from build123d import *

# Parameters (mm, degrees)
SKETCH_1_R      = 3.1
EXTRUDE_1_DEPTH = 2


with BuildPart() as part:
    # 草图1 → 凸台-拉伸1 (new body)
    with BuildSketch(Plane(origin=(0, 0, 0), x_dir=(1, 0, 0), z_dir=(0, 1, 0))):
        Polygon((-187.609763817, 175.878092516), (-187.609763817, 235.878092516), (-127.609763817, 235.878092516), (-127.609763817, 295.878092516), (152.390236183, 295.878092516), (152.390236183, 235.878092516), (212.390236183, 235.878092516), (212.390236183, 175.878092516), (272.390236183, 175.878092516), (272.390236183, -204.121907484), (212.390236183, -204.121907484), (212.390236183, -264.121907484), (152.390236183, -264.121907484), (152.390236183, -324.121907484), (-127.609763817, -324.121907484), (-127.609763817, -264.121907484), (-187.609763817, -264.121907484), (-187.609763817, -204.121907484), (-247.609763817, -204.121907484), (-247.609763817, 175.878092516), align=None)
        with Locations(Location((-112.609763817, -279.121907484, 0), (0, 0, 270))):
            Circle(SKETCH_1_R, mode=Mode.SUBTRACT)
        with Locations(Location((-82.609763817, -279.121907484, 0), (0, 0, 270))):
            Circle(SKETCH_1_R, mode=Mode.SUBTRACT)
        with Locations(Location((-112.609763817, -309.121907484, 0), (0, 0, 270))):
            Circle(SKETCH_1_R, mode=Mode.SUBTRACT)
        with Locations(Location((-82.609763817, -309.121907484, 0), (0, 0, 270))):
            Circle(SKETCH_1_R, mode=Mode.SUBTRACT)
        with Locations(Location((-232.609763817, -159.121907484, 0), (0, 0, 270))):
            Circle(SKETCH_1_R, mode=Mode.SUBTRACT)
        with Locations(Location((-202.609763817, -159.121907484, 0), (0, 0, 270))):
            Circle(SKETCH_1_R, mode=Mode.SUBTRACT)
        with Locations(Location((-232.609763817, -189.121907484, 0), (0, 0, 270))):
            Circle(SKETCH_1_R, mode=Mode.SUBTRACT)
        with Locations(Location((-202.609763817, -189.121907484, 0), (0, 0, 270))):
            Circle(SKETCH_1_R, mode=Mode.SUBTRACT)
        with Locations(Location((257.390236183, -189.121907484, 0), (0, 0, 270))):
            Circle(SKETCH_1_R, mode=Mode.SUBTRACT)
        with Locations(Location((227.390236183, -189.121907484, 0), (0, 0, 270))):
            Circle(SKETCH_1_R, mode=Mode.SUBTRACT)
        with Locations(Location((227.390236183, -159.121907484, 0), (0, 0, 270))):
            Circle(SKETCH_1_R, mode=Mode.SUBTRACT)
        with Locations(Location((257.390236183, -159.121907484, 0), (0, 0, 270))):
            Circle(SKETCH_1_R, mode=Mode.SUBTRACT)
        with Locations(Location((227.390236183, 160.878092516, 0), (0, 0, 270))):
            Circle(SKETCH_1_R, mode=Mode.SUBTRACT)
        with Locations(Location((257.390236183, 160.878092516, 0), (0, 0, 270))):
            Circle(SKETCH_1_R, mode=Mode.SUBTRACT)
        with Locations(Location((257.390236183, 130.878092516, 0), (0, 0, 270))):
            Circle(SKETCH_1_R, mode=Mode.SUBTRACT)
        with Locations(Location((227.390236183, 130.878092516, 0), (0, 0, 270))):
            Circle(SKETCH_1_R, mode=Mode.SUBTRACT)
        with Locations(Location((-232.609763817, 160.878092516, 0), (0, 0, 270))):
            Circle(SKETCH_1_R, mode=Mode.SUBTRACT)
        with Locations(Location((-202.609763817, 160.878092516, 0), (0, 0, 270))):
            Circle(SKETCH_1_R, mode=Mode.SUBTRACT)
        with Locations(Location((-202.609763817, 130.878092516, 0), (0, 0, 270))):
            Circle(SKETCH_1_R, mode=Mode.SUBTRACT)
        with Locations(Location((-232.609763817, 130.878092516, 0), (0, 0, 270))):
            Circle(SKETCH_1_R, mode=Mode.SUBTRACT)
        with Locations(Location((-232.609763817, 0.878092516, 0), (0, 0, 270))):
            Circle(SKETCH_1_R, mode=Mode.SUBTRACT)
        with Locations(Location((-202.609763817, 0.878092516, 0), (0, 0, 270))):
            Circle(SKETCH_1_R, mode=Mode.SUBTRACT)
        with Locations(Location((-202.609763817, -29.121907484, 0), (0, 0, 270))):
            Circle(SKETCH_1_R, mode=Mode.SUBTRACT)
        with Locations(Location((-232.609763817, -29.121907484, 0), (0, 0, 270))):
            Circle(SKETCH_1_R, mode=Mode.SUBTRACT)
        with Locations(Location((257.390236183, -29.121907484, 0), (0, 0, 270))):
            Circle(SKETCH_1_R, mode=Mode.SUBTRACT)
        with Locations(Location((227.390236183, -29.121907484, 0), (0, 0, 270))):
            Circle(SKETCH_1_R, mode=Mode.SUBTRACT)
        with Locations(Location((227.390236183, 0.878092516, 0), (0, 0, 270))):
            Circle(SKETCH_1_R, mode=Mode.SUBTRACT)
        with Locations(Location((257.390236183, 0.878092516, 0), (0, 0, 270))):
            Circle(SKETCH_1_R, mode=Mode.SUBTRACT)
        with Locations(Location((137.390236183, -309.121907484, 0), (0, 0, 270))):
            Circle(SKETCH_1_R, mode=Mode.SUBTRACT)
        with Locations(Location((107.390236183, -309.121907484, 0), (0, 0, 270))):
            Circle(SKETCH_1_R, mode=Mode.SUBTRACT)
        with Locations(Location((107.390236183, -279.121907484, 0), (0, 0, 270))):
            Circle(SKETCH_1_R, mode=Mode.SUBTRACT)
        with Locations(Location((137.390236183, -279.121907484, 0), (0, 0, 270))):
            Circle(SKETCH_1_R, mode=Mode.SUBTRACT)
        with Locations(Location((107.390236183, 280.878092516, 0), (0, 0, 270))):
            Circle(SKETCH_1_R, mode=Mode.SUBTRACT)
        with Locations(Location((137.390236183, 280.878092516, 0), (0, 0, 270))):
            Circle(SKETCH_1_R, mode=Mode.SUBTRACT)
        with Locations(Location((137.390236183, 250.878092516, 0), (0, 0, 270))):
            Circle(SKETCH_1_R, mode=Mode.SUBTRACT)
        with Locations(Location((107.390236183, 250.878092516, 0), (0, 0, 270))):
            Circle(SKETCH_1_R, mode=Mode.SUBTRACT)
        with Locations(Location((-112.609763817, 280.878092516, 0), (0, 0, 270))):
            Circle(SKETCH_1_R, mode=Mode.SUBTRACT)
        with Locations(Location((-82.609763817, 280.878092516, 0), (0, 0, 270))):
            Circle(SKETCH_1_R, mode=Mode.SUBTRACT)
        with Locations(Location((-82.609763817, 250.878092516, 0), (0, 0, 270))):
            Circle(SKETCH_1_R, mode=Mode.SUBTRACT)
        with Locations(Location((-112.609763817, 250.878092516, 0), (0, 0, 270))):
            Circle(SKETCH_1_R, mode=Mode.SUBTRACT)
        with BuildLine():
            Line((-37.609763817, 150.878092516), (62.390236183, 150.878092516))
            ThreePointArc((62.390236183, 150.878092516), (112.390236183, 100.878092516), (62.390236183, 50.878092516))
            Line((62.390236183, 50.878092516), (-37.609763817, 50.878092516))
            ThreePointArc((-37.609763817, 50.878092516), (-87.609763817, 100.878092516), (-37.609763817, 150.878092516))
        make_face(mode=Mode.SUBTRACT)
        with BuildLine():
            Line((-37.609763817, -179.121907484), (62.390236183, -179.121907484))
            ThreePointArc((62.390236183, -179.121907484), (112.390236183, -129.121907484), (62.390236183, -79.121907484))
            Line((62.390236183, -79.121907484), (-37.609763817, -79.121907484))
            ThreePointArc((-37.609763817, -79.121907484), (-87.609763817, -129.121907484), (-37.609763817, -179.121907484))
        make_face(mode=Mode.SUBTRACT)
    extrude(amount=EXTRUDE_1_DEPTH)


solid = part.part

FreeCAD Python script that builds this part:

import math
import FreeCAD as App
import Part
import Sketcher
from FreeCAD import Vector


def add_polygon(sketch, points):
    """Adds a closed chain of lines whose ends are joined by coincident constraints."""
    first, n = sketch.GeometryCount, len(points)
    for a, b in zip(points, points[1:] + points[:1]):
        sketch.addGeometry(Part.LineSegment(App.Vector(*a, 0), App.Vector(*b, 0)), False)
    for i in range(n):
        sketch.addConstraint(Sketcher.Constraint("Coincident", first + i, 2, first + (i + 1) % n, 1))

doc = App.newDocument("Part")
body = doc.addObject("PartDesign::Body", "Body")

# Sketch on XZ plane
sketch1 = body.newObject("Sketcher::SketchObject", "Sketch")
sketch1.AttachmentSupport = (doc.getObject("XZ_Plane"), [""])
sketch1.MapMode = "FlatFace"
add_polygon(sketch1, [(-187.6, -235.9), (-187.6, -175.9), (-247.6, -175.9), (-247.6, 204.1), (-187.6, 204.1), (-187.6, 264.1), (-127.6, 264.1), (-127.6, 324.1), (152.4, 324.1), (152.4, 264.1), (212.4, 264.1), (212.4, 204.1), (272.4, 204.1), (272.4, -175.9), (212.4, -175.9), (212.4, -235.9), (152.4, -235.9), (152.4, -295.9), (-127.6, -295.9), (-127.6, -235.9)])  # lines 0-19
sketch1.addGeometry(Part.Circle(Vector(137.4, 309.1, 0), Vector(0, 0, 1), 3.1), False)  # 20
sketch1.addGeometry(Part.Circle(Vector(137.4, 279.1, 0), Vector(0, 0, 1), 3.1), False)  # 21
sketch1.addGeometry(Part.Circle(Vector(257.4, 189.1, 0), Vector(0, 0, 1), 3.1), False)  # 22
sketch1.addGeometry(Part.Circle(Vector(227.4, 189.1, 0), Vector(0, 0, 1), 3.1), False)  # 23
sketch1.addGeometry(Part.Circle(Vector(107.4, 309.1, 0), Vector(0, 0, 1), 3.1), False)  # 24
sketch1.addGeometry(Part.Circle(Vector(107.4, 279.1, 0), Vector(0, 0, 1), 3.1), False)  # 25
sketch1.addGeometry(Part.Circle(Vector(257.4, 159.1, 0), Vector(0, 0, 1), 3.1), False)  # 26
sketch1.addGeometry(Part.Circle(Vector(227.4, 159.1, 0), Vector(0, 0, 1), 3.1), False)  # 27
sketch1.addGeometry(Part.Circle(Vector(257.4, 29.1, 0), Vector(0, 0, 1), 3.1), False)  # 28
sketch1.addGeometry(Part.Circle(Vector(227.4, 29.1, 0), Vector(0, 0, 1), 3.1), False)  # 29
sketch1.addGeometry(Part.Circle(Vector(-82.6, 309.1, 0), Vector(0, 0, 1), 3.1), False)  # 30
sketch1.addGeometry(Part.Circle(Vector(-82.6, 279.1, 0), Vector(0, 0, 1), 3.1), False)  # 31
sketch1.addGeometry(Part.Circle(Vector(-112.6, 309.1, 0), Vector(0, 0, 1), 3.1), False)  # 32
sketch1.addGeometry(Part.Circle(Vector(-112.6, 279.1, 0), Vector(0, 0, 1), 3.1), False)  # 33
sketch1.addGeometry(Part.Circle(Vector(-202.6, 189.1, 0), Vector(0, 0, 1), 3.1), False)  # 34
sketch1.addGeometry(Part.Circle(Vector(-232.6, 189.1, 0), Vector(0, 0, 1), 3.1), False)  # 35
sketch1.addGeometry(Part.ArcOfCircle(Part.Circle(Vector(-37.6, 129.1, 0), Vector(0, 0, 1), 50), math.radians(90), math.radians(270)), False)  # 36
sketch1.addGeometry(Part.LineSegment(Vector(-37.6, 79.1, 0), Vector(62.4, 79.1, 0)), False)  # 37
sketch1.addGeometry(Part.ArcOfCircle(Part.Circle(Vector(62.4, 129.1, 0), Vector(0, 0, 1), 50), math.radians(-90), math.radians(90)), False)  # 38
sketch1.addGeometry(Part.LineSegment(Vector(62.4, 179.1, 0), Vector(-37.6, 179.1, 0)), False)  # 39
sketch1.addGeometry(Part.Circle(Vector(-202.6, 159.1, 0), Vector(0, 0, 1), 3.1), False)  # 40
sketch1.addGeometry(Part.Circle(Vector(-232.6, 159.1, 0), Vector(0, 0, 1), 3.1), False)  # 41
sketch1.addGeometry(Part.Circle(Vector(-202.6, 29.1, 0), Vector(0, 0, 1), 3.1), False)  # 42
sketch1.addGeometry(Part.Circle(Vector(-232.6, 29.1, 0), Vector(0, 0, 1), 3.1), False)  # 43
sketch1.addGeometry(Part.Circle(Vector(257.4, -0.9, 0), Vector(0, 0, 1), 3.1), False)  # 44
sketch1.addGeometry(Part.Circle(Vector(227.4, -0.9, 0), Vector(0, 0, 1), 3.1), False)  # 45
sketch1.addGeometry(Part.Circle(Vector(257.4, -130.9, 0), Vector(0, 0, 1), 3.1), False)  # 46
sketch1.addGeometry(Part.Circle(Vector(227.4, -130.9, 0), Vector(0, 0, 1), 3.1), False)  # 47
sketch1.addGeometry(Part.Circle(Vector(257.4, -160.9, 0), Vector(0, 0, 1), 3.1), False)  # 48
sketch1.addGeometry(Part.Circle(Vector(227.4, -160.9, 0), Vector(0, 0, 1), 3.1), False)  # 49
sketch1.addGeometry(Part.Circle(Vector(137.4, -250.9, 0), Vector(0, 0, 1), 3.1), False)  # 50
sketch1.addGeometry(Part.Circle(Vector(137.4, -280.9, 0), Vector(0, 0, 1), 3.1), False)  # 51
sketch1.addGeometry(Part.Circle(Vector(107.4, -250.9, 0), Vector(0, 0, 1), 3.1), False)  # 52
sketch1.addGeometry(Part.Circle(Vector(107.4, -280.9, 0), Vector(0, 0, 1), 3.1), False)  # 53
sketch1.addGeometry(Part.LineSegment(Vector(-37.6, -150.9, 0), Vector(62.4, -150.9, 0)), False)  # 54
sketch1.addGeometry(Part.ArcOfCircle(Part.Circle(Vector(62.4, -100.9, 0), Vector(0, 0, 1), 50), math.radians(-90), math.radians(90)), False)  # 55
sketch1.addGeometry(Part.LineSegment(Vector(62.4, -50.9, 0), Vector(-37.6, -50.9, 0)), False)  # 56
sketch1.addGeometry(Part.ArcOfCircle(Part.Circle(Vector(-37.6, -100.9, 0), Vector(0, 0, 1), 50), math.radians(90), math.radians(270)), False)  # 57
sketch1.addGeometry(Part.Circle(Vector(-202.6, -0.9, 0), Vector(0, 0, 1), 3.1), False)  # 58
sketch1.addGeometry(Part.Circle(Vector(-232.6, -0.9, 0), Vector(0, 0, 1), 3.1), False)  # 59
sketch1.addGeometry(Part.Circle(Vector(-202.6, -130.9, 0), Vector(0, 0, 1), 3.1), False)  # 60
sketch1.addGeometry(Part.Circle(Vector(-232.6, -130.9, 0), Vector(0, 0, 1), 3.1), False)  # 61
sketch1.addGeometry(Part.Circle(Vector(-82.6, -250.9, 0), Vector(0, 0, 1), 3.1), False)  # 62
sketch1.addGeometry(Part.Circle(Vector(-82.6, -280.9, 0), Vector(0, 0, 1), 3.1), False)  # 63
sketch1.addGeometry(Part.Circle(Vector(-202.6, -160.9, 0), Vector(0, 0, 1), 3.1), False)  # 64
sketch1.addGeometry(Part.Circle(Vector(-232.6, -160.9, 0), Vector(0, 0, 1), 3.1), False)  # 65
sketch1.addGeometry(Part.Circle(Vector(-112.6, -250.9, 0), Vector(0, 0, 1), 3.1), False)  # 66
sketch1.addGeometry(Part.Circle(Vector(-112.6, -280.9, 0), Vector(0, 0, 1), 3.1), False)  # 67
sketch1.addConstraint([
    Sketcher.Constraint("Tangent", 36, 2, 37, 1),
    Sketcher.Constraint("Tangent", 37, 2, 38, 1),
    Sketcher.Constraint("Tangent", 38, 2, 39, 1),
    Sketcher.Constraint("Tangent", 39, 2, 36, 1),
    Sketcher.Constraint("Tangent", 54, 2, 55, 1),
    Sketcher.Constraint("Tangent", 55, 2, 56, 1),
    Sketcher.Constraint("Tangent", 56, 2, 57, 1),
    Sketcher.Constraint("Tangent", 57, 2, 54, 1),
    Sketcher.Constraint("Vertical", 0),
    Sketcher.Constraint("Horizontal", 1),
    Sketcher.Constraint("Vertical", 2),
    Sketcher.Constraint("Horizontal", 3),
    Sketcher.Constraint("Vertical", 4),
    Sketcher.Constraint("Horizontal", 5),
    Sketcher.Constraint("Vertical", 6),
    Sketcher.Constraint("Horizontal", 7),
    Sketcher.Constraint("Vertical", 8),
    Sketcher.Constraint("Horizontal", 9),
    Sketcher.Constraint("Vertical", 10),
    Sketcher.Constraint("Horizontal", 11),
    Sketcher.Constraint("Vertical", 12),
    Sketcher.Constraint("Horizontal", 13),
    Sketcher.Constraint("Vertical", 14),
    Sketcher.Constraint("Horizontal", 15),
    Sketcher.Constraint("Vertical", 16),
    Sketcher.Constraint("Horizontal", 17),
    Sketcher.Constraint("Vertical", 18),
    Sketcher.Constraint("Horizontal", 19),
    Sketcher.Constraint("Horizontal", 37),
    Sketcher.Constraint("Horizontal", 39),
    Sketcher.Constraint("Horizontal", 54),
    Sketcher.Constraint("Horizontal", 56),
    Sketcher.Constraint("Equal", 20, 21),
    Sketcher.Constraint("Equal", 21, 22),
    Sketcher.Constraint("Equal", 22, 23),
    Sketcher.Constraint("Equal", 23, 24),
    Sketcher.Constraint("Equal", 24, 25),
    Sketcher.Constraint("Equal", 25, 26),
    Sketcher.Constraint("Equal", 26, 27),
    Sketcher.Constraint("Equal", 27, 28),
    Sketcher.Constraint("Equal", 28, 29),
    Sketcher.Constraint("Equal", 29, 30),
    Sketcher.Constraint("Equal", 30, 31),
    Sketcher.Constraint("Equal", 31, 32),
    Sketcher.Constraint("Equal", 32, 33),
    Sketcher.Constraint("Equal", 33, 34),
    Sketcher.Constraint("Equal", 34, 35),
    Sketcher.Constraint("Equal", 35, 40),
    Sketcher.Constraint("Equal", 40, 41),
    Sketcher.Constraint("Equal", 41, 42),
    Sketcher.Constraint("Equal", 42, 43),
    Sketcher.Constraint("Equal", 43, 44),
    Sketcher.Constraint("Equal", 44, 45),
    Sketcher.Constraint("Equal", 45, 46),
    Sketcher.Constraint("Equal", 46, 47),
    Sketcher.Constraint("Equal", 47, 48),
    Sketcher.Constraint("Equal", 48, 49),
    Sketcher.Constraint("Equal", 49, 50),
    Sketcher.Constraint("Equal", 50, 51),
    Sketcher.Constraint("Equal", 51, 52),
    Sketcher.Constraint("Equal", 52, 53),
    Sketcher.Constraint("Equal", 38, 55),
    Sketcher.Constraint("Equal", 53, 58),
    Sketcher.Constraint("Equal", 58, 59),
    Sketcher.Constraint("Equal", 59, 60),
    Sketcher.Constraint("Equal", 60, 61),
    Sketcher.Constraint("Equal", 61, 62),
    Sketcher.Constraint("Equal", 62, 63),
    Sketcher.Constraint("Equal", 63, 64),
    Sketcher.Constraint("Equal", 64, 65),
    Sketcher.Constraint("Equal", 65, 66),
    Sketcher.Constraint("Equal", 66, 67),
    Sketcher.Constraint("Horizontal", 22, 3, 23, 3),
    Sketcher.Constraint("Horizontal", 20, 3, 24, 3),
    Sketcher.Constraint("Horizontal", 21, 3, 25, 3),
    Sketcher.Constraint("Horizontal", 26, 3, 27, 3),
    Sketcher.Constraint("Horizontal", 28, 3, 29, 3),
    Sketcher.Constraint("Horizontal", 24, 3, 30, 3),
    Sketcher.Constraint("Horizontal", 25, 3, 31, 3),
    Sketcher.Constraint("Horizontal", 30, 3, 32, 3),
    Sketcher.Constraint("Horizontal", 31, 3, 33, 3),
    Sketcher.Constraint("Horizontal", 23, 3, 34, 3),
    Sketcher.Constraint("Horizontal", 34, 3, 35, 3),
    Sketcher.Constraint("Horizontal", 27, 3, 40, 3),
    Sketcher.Constraint("Horizontal", 40, 3, 41, 3),
    Sketcher.Constraint("Horizontal", 29, 3, 42, 3),
    Sketcher.Constraint("Horizontal", 42, 3, 43, 3),
    Sketcher.Constraint("Horizontal", 44, 3, 45, 3),
    Sketcher.Constraint("Horizontal", 46, 3, 47, 3),
    Sketcher.Constraint("Horizontal", 48, 3, 49, 3),
    Sketcher.Constraint("Horizontal", 50, 3, 52, 3),
    Sketcher.Constraint("Horizontal", 51, 3, 53, 3),
    Sketcher.Constraint("Horizontal", 45, 3, 58, 3),
    Sketcher.Constraint("Horizontal", 58, 3, 59, 3),
    Sketcher.Constraint("Horizontal", 47, 3, 60, 3),
    Sketcher.Constraint("Horizontal", 60, 3, 61, 3),
    Sketcher.Constraint("Horizontal", 52, 3, 62, 3),
    Sketcher.Constraint("Horizontal", 53, 3, 63, 3),
    Sketcher.Constraint("Horizontal", 49, 3, 64, 3),
    Sketcher.Constraint("Horizontal", 64, 3, 65, 3),
    Sketcher.Constraint("Horizontal", 62, 3, 66, 3),
    Sketcher.Constraint("Horizontal", 63, 3, 67, 3),
    Sketcher.Constraint("Horizontal", 5, 2, 8, 2),
    Sketcher.Constraint("Horizontal", 3, 2, 10, 2),
    Sketcher.Constraint("Horizontal", 1, 2, 12, 2),
    Sketcher.Constraint("Horizontal", 15, 2, 18, 2),
    Sketcher.Constraint("Vertical", 20, 3, 21, 3),
    Sketcher.Constraint("Vertical", 24, 3, 25, 3),
    Sketcher.Constraint("Vertical", 22, 3, 26, 3),
    Sketcher.Constraint("Vertical", 23, 3, 27, 3),
    Sketcher.Constraint("Vertical", 26, 3, 28, 3),
    Sketcher.Constraint("Vertical", 27, 3, 29, 3),
    Sketcher.Constraint("Vertical", 30, 3, 31, 3),
    Sketcher.Constraint("Vertical", 32, 3, 33, 3),
    Sketcher.Constraint("Vertical", 34, 3, 40, 3),
    Sketcher.Constraint("Vertical", 35, 3, 41, 3),
    Sketcher.Constraint("Vertical", 40, 3, 42, 3),
    Sketcher.Constraint("Vertical", 41, 3, 43, 3),
    Sketcher.Constraint("Vertical", 28, 3, 44, 3),
    Sketcher.Constraint("Vertical", 29, 3, 45, 3),
    Sketcher.Constraint("Vertical", 44, 3, 46, 3),
    Sketcher.Constraint("Vertical", 45, 3, 47, 3),
    Sketcher.Constraint("Vertical", 46, 3, 48, 3),
    Sketcher.Constraint("Vertical", 47, 3, 49, 3),
    Sketcher.Constraint("Vertical", 21, 3, 50, 3),
    Sketcher.Constraint("Vertical", 50, 3, 51, 3),
    Sketcher.Constraint("Vertical", 25, 3, 52, 3),
    Sketcher.Constraint("Vertical", 52, 3, 53, 3),
    Sketcher.Constraint("Vertical", 38, 3, 55, 3),
    Sketcher.Constraint("Vertical", 36, 3, 57, 3),
    Sketcher.Constraint("Vertical", 42, 3, 58, 3),
    Sketcher.Constraint("Vertical", 43, 3, 59, 3),
    Sketcher.Constraint("Vertical", 58, 3, 60, 3),
    Sketcher.Constraint("Vertical", 59, 3, 61, 3),
    Sketcher.Constraint("Vertical", 31, 3, 62, 3),
    Sketcher.Constraint("Vertical", 62, 3, 63, 3),
    Sketcher.Constraint("Vertical", 60, 3, 64, 3),
    Sketcher.Constraint("Vertical", 61, 3, 65, 3),
    Sketcher.Constraint("Vertical", 33, 3, 66, 3),
    Sketcher.Constraint("Vertical", 66, 3, 67, 3),
    Sketcher.Constraint("Vertical", 0, 2, 3, 2),
    Sketcher.Constraint("Vertical", 10, 2, 13, 2),
    Sketcher.Constraint("Vertical", 8, 2, 15, 2),
    Sketcher.Constraint("Vertical", 6, 2, 17, 2),
    Sketcher.Constraint("Equal", 3, 5),
    Sketcher.Constraint("Equal", 5, 9),
    Sketcher.Constraint("Equal", 9, 11),
    Sketcher.Constraint("Equal", 19, 0),
    Sketcher.Constraint("Equal", 0, 4),
    Sketcher.Constraint("Equal", 4, 6),
    Sketcher.Constraint("Equal", 14, 16),
    Sketcher.Constraint("Radius", 36, 50.0),
    Sketcher.Constraint("Diameter", 20, 6.2),
    Sketcher.Constraint("DistanceX", 1, 2, 1, 1, 60.0),
    Sketcher.Constraint("DistanceX", 7, 1, 7, 2, 280.0),
    Sketcher.Constraint("DistanceX", 37, 1, 37, 2, 100.0),
    Sketcher.Constraint("DistanceY", 2, 1, 2, 2, 380.0),
    Sketcher.Constraint("DistanceX", -1, 1, 20, 3, 137.390236),
    Sketcher.Constraint("DistanceY", -1, 1, 20, 3, 309.121907),
    Sketcher.Constraint("DistanceY", -1, 1, 21, 3, 279.121907),
    Sketcher.Constraint("DistanceX", -1, 1, 22, 3, 257.390236),
    Sketcher.Constraint("DistanceY", -1, 1, 22, 3, 189.121907),
    Sketcher.Constraint("DistanceX", -1, 1, 23, 3, 227.390236),
    Sketcher.Constraint("DistanceX", -1, 1, 24, 3, 107.390236),
    Sketcher.Constraint("DistanceY", -1, 1, 26, 3, 159.121907),
    Sketcher.Constraint("DistanceY", -1, 1, 28, 3, 29.121907),
    Sketcher.Constraint("DistanceX", 30, 3, -1, 1, 82.609764),
    Sketcher.Constraint("DistanceX", 32, 3, -1, 1, 112.609764),
    Sketcher.Constraint("DistanceX", 34, 3, -1, 1, 202.609764),
    Sketcher.Constraint("DistanceX", 35, 3, -1, 1, 232.609764),
    Sketcher.Constraint("DistanceX", 36, 3, -1, 1, 37.609764),
    Sketcher.Constraint("DistanceY", -1, 1, 36, 3, 129.121907),
    Sketcher.Constraint("DistanceY", 44, 3, -1, 1, 0.878093),
    Sketcher.Constraint("DistanceY", 46, 3, -1, 1, 130.878093),
    Sketcher.Constraint("DistanceY", 48, 3, -1, 1, 160.878093),
    Sketcher.Constraint("DistanceY", 50, 3, -1, 1, 250.878093),
    Sketcher.Constraint("DistanceY", 51, 3, -1, 1, 280.878093),
    Sketcher.Constraint("DistanceY", 55, 3, -1, 1, 100.878093),
    Sketcher.Constraint("DistanceX", 0, 2, -1, 1, 187.609764),
    Sketcher.Constraint("DistanceY", 0, 2, -1, 1, 175.878093),
])
pad1 = body.newObject("PartDesign::Pad", "Pad")
pad1.Profile = sketch1
pad1.Length = 2
pad1.Reversed = True

doc.recompute()
